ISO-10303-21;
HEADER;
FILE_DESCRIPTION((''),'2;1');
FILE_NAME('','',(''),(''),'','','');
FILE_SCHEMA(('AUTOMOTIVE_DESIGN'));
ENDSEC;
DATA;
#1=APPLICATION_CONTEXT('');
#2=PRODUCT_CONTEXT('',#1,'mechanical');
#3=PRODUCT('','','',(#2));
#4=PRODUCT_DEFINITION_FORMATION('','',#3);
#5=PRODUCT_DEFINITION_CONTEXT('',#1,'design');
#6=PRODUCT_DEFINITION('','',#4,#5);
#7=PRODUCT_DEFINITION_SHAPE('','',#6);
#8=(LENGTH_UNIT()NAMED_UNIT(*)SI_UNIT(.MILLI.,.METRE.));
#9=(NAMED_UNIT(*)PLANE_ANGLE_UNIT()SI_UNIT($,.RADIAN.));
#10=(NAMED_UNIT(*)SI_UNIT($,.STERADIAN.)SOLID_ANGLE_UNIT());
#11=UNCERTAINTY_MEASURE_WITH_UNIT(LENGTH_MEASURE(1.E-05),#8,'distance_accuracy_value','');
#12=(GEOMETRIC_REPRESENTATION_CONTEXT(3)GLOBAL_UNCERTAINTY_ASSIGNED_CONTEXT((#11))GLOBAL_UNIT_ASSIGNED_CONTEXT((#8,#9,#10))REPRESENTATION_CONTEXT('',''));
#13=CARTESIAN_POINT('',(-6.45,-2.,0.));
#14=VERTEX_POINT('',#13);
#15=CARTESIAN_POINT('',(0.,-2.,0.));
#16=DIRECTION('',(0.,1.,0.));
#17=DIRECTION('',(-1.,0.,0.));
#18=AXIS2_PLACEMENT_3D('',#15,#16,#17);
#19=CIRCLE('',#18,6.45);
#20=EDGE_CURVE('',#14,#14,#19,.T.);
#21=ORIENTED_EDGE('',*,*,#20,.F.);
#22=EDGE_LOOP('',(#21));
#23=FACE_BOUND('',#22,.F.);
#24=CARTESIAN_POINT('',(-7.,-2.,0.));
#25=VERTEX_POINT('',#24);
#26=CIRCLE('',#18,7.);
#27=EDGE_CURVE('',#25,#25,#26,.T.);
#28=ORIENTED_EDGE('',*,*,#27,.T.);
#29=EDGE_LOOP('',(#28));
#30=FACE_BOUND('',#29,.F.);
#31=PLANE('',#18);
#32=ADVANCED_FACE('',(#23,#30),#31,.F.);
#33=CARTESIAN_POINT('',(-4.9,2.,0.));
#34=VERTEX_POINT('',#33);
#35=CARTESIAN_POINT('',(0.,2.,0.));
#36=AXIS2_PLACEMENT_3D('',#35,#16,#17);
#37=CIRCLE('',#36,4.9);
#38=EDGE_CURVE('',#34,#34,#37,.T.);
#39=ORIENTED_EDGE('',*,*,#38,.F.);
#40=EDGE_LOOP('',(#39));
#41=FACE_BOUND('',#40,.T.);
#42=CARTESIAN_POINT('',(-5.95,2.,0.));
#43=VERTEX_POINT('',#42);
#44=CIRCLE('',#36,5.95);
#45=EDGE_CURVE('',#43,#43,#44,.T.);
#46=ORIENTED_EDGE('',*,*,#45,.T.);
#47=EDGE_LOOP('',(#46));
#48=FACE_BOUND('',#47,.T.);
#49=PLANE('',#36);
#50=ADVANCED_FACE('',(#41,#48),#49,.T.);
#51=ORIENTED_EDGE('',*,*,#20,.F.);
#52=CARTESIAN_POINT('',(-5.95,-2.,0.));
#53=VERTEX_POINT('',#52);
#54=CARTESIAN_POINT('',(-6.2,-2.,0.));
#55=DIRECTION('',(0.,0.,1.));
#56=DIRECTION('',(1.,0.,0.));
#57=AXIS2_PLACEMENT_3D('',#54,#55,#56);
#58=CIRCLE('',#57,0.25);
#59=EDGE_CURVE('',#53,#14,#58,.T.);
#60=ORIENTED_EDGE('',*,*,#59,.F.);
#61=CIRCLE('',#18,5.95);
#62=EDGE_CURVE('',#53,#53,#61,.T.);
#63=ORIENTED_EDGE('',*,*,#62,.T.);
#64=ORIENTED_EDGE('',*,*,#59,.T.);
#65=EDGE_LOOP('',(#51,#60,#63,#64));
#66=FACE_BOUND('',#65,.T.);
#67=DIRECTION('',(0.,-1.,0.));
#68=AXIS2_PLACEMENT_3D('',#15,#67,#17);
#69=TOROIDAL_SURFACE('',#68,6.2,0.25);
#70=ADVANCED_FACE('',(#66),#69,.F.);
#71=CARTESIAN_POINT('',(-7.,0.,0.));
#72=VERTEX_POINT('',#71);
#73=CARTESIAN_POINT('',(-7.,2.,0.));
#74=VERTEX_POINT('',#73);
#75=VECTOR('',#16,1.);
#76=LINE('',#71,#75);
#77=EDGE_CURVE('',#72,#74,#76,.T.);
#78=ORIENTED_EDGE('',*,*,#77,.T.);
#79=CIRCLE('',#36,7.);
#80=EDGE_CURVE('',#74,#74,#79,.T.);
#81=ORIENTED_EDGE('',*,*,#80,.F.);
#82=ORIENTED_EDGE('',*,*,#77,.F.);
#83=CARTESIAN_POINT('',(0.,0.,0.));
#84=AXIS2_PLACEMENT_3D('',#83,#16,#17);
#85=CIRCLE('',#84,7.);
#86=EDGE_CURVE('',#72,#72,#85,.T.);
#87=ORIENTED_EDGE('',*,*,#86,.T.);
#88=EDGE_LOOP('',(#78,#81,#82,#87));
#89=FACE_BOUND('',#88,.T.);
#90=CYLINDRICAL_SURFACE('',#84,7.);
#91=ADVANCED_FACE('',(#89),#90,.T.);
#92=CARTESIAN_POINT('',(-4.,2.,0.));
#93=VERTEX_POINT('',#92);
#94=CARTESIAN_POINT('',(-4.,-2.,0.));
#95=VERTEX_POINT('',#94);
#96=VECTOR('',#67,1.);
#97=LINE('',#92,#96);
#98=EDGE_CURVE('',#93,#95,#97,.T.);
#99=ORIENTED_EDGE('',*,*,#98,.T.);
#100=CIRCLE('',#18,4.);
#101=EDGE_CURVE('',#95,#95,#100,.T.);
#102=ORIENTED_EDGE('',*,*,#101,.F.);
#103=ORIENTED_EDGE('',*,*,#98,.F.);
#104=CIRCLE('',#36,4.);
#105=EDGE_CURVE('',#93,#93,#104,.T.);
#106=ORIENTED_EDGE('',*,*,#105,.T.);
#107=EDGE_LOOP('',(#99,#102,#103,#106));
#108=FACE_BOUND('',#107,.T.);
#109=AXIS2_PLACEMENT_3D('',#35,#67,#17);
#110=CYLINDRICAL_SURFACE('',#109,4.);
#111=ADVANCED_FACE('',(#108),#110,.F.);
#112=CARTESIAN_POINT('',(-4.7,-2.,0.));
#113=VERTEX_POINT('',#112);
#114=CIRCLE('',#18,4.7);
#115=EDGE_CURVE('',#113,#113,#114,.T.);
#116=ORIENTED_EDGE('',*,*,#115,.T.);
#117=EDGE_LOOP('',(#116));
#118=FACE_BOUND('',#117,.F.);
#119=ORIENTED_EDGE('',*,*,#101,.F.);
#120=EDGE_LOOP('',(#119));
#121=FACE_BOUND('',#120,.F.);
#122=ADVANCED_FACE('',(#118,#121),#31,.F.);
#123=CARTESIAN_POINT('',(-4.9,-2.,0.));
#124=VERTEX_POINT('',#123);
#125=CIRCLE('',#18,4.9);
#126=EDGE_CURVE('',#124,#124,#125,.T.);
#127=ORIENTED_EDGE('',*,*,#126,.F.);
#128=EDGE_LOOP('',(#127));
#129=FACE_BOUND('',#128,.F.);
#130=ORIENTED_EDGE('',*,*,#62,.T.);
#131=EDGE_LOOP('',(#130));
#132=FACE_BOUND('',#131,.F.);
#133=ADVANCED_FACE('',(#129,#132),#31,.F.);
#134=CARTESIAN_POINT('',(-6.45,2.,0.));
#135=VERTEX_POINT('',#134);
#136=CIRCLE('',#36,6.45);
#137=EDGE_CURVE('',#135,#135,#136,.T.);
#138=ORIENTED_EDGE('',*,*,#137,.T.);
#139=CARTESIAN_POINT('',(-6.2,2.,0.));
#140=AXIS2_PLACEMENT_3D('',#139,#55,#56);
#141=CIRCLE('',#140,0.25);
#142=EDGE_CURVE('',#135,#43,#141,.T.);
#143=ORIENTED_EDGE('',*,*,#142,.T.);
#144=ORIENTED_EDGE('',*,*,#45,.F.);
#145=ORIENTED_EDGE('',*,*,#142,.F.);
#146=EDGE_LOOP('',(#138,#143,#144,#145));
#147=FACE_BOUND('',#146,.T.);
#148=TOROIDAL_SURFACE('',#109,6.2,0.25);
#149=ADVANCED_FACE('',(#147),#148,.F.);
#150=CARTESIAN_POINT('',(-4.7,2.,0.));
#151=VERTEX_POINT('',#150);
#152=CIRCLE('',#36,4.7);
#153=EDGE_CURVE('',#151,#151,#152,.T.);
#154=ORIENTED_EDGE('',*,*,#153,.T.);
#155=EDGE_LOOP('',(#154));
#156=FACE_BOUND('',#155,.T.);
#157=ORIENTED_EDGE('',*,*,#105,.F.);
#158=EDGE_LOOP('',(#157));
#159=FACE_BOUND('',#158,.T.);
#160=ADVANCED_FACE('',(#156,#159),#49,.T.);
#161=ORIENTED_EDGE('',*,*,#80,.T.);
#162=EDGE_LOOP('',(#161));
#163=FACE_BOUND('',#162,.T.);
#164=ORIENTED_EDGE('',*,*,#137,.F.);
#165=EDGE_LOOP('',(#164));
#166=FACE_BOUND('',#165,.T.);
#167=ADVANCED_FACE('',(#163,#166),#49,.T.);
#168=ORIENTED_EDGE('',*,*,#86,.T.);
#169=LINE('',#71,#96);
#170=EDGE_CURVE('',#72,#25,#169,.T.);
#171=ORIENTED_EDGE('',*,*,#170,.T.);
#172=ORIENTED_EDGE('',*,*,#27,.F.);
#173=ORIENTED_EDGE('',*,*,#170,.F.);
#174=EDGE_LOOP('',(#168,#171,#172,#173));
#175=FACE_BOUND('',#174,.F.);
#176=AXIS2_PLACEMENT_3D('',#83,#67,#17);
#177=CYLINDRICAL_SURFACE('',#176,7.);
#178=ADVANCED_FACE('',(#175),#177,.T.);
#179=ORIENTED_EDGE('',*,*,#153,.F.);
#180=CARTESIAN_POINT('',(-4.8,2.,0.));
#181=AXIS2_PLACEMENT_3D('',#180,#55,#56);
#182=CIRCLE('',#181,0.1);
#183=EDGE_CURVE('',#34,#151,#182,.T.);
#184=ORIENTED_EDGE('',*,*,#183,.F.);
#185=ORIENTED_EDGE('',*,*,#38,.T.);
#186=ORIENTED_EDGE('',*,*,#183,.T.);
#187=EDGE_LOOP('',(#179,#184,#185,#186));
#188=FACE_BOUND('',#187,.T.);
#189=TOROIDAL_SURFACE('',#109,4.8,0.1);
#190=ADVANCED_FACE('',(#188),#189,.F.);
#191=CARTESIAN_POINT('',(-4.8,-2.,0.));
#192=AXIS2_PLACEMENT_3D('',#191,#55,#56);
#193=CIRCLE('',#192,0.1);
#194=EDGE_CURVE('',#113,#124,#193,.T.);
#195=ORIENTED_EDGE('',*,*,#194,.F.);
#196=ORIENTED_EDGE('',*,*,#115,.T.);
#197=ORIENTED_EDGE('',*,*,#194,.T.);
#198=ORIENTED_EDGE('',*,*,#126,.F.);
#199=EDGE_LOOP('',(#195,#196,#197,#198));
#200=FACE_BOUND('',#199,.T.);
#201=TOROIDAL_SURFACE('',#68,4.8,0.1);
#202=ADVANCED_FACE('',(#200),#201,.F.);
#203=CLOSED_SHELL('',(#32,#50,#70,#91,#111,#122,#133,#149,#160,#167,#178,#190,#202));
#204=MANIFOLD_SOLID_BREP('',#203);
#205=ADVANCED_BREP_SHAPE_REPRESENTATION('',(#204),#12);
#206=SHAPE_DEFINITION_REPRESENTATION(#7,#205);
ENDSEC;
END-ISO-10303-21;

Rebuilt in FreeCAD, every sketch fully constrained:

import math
import FreeCAD as App
import Part
import Sketcher
Q = App.Units.Quantity

doc = App.newDocument("Part")
body = doc.addObject("PartDesign::Body", "Body")

# Sketch on XY plane
sketch1 = doc.addObject("Sketcher::SketchObject", "Sketch")
body.addObject(sketch1)
sketch1.AttachmentSupport = (doc.XY_Plane, [""])
sketch1.MapMode = "FlatFace"
sketch1.addGeometry([
    Part.LineSegment(App.Vector(-4, 2, 0), App.Vector(-4.7, 2, 0)),  # 0
    Part.ArcOfCircle(Part.Circle(App.Vector(-4.8, 2, 0), App.Vector(0, 0, 1), 0.1), math.radians(180), math.radians(360)),  # 1
    Part.LineSegment(App.Vector(-4.9, 2, 0), App.Vector(-5.95, 2, 0)),  # 2
    Part.ArcOfCircle(Part.Circle(App.Vector(-6.2, 2, 0), App.Vector(0, 0, 1), 0.25), math.radians(180), math.radians(360)),  # 3
    Part.LineSegment(App.Vector(-6.45, 2, 0), App.Vector(-7, 2, 0)),  # 4
    Part.LineSegment(App.Vector(-7, 2, 0), App.Vector(-7, -2, 0)),  # 5
    Part.LineSegment(App.Vector(-7, -2, 0), App.Vector(-6.45, -2, 0)),  # 6
    Part.ArcOfCircle(Part.Circle(App.Vector(-6.2, -2, 0), App.Vector(0, 0, 1), 0.25), math.radians(0), math.radians(180)),  # 7
    Part.LineSegment(App.Vector(-5.95, -2, 0), App.Vector(-4.9, -2, 0)),  # 8
    Part.ArcOfCircle(Part.Circle(App.Vector(-4.8, -2, 0), App.Vector(0, 0, 1), 0.1), math.radians(0), math.radians(180)),  # 9
    Part.LineSegment(App.Vector(-4.7, -2, 0), App.Vector(-4, -2, 0)),  # 10
    Part.LineSegment(App.Vector(-4, -2, 0), App.Vector(-4, 2, 0)),  # 11
], False)
sketch1.addConstraint([
    Sketcher.Constraint("Coincident", 0, 2, 1, 2),
    Sketcher.Constraint("Coincident", 1, 1, 2, 1),
    Sketcher.Constraint("Coincident", 2, 2, 3, 2),
    Sketcher.Constraint("Coincident", 3, 1, 4, 1),
    Sketcher.Constraint("Coincident", 4, 2, 5, 1),
    Sketcher.Constraint("Coincident", 5, 2, 6, 1),
    Sketcher.Constraint("Coincident", 6, 2, 7, 2),
    Sketcher.Constraint("Coincident", 7, 1, 8, 1),
    Sketcher.Constraint("Coincident", 8, 2, 9, 2),
    Sketcher.Constraint("Coincident", 9, 1, 10, 1),
    Sketcher.Constraint("Coincident", 10, 2, 11, 1),
    Sketcher.Constraint("Coincident", 11, 2, 0, 1),
    Sketcher.Constraint("Horizontal", 0),
    Sketcher.Constraint("Horizontal", 2),
    Sketcher.Constraint("Horizontal", 4),
    Sketcher.Constraint("Vertical", 5),
    Sketcher.Constraint("Horizontal", 6),
    Sketcher.Constraint("Horizontal", 8),
    Sketcher.Constraint("Horizontal", 10),
    Sketcher.Constraint("Vertical", 11),
    Sketcher.Constraint("Equal", 3, 7),
    Sketcher.Constraint("Equal", 1, 9),
    Sketcher.Constraint("Symmetric", 3, 3, 7, 3, -1),
    Sketcher.Constraint("Symmetric", 1, 3, 9, 3, -1),
    Sketcher.Constraint("Horizontal", 1, 3, 3, 3),
    Sketcher.Constraint("Horizontal", 3, 3, 0, 2),
    Sketcher.Constraint("Horizontal", 0, 2, 1, 1),
    Sketcher.Constraint("Horizontal", 2, 2, 3, 1),
    Sketcher.Constraint("Horizontal", 9, 3, 5, 2),
    Sketcher.Constraint("Horizontal", 6, 2, 7, 1),
    Sketcher.Constraint("Horizontal", 8, 2, 9, 1),
    Sketcher.Constraint("Radius", 1, Q("0.1 mm")),
    Sketcher.Constraint("DistanceY", 5, 2, 5, 1, Q("4 mm")),
    Sketcher.Constraint("Radius", 3, Q("0.25 mm")),
    Sketcher.Constraint("DistanceX", 4, 2, -1, 1, Q("7 mm")),
    Sketcher.Constraint("DistanceX", 10, 2, -1, 1, Q("4 mm")),
    Sketcher.Constraint("DistanceX", 4, 2, 3, 3, Q("0.8 mm")),
    Sketcher.Constraint("DistanceX", 4, 2, 1, 3, Q("2.2 mm")),
])
revolution = doc.addObject("PartDesign::Revolution", "Revolution")
body.addObject(revolution)
revolution.Profile = sketch1
revolution.ReferenceAxis = (sketch1, ["V_Axis"])
revolution.Angle = 360

doc.recompute()
